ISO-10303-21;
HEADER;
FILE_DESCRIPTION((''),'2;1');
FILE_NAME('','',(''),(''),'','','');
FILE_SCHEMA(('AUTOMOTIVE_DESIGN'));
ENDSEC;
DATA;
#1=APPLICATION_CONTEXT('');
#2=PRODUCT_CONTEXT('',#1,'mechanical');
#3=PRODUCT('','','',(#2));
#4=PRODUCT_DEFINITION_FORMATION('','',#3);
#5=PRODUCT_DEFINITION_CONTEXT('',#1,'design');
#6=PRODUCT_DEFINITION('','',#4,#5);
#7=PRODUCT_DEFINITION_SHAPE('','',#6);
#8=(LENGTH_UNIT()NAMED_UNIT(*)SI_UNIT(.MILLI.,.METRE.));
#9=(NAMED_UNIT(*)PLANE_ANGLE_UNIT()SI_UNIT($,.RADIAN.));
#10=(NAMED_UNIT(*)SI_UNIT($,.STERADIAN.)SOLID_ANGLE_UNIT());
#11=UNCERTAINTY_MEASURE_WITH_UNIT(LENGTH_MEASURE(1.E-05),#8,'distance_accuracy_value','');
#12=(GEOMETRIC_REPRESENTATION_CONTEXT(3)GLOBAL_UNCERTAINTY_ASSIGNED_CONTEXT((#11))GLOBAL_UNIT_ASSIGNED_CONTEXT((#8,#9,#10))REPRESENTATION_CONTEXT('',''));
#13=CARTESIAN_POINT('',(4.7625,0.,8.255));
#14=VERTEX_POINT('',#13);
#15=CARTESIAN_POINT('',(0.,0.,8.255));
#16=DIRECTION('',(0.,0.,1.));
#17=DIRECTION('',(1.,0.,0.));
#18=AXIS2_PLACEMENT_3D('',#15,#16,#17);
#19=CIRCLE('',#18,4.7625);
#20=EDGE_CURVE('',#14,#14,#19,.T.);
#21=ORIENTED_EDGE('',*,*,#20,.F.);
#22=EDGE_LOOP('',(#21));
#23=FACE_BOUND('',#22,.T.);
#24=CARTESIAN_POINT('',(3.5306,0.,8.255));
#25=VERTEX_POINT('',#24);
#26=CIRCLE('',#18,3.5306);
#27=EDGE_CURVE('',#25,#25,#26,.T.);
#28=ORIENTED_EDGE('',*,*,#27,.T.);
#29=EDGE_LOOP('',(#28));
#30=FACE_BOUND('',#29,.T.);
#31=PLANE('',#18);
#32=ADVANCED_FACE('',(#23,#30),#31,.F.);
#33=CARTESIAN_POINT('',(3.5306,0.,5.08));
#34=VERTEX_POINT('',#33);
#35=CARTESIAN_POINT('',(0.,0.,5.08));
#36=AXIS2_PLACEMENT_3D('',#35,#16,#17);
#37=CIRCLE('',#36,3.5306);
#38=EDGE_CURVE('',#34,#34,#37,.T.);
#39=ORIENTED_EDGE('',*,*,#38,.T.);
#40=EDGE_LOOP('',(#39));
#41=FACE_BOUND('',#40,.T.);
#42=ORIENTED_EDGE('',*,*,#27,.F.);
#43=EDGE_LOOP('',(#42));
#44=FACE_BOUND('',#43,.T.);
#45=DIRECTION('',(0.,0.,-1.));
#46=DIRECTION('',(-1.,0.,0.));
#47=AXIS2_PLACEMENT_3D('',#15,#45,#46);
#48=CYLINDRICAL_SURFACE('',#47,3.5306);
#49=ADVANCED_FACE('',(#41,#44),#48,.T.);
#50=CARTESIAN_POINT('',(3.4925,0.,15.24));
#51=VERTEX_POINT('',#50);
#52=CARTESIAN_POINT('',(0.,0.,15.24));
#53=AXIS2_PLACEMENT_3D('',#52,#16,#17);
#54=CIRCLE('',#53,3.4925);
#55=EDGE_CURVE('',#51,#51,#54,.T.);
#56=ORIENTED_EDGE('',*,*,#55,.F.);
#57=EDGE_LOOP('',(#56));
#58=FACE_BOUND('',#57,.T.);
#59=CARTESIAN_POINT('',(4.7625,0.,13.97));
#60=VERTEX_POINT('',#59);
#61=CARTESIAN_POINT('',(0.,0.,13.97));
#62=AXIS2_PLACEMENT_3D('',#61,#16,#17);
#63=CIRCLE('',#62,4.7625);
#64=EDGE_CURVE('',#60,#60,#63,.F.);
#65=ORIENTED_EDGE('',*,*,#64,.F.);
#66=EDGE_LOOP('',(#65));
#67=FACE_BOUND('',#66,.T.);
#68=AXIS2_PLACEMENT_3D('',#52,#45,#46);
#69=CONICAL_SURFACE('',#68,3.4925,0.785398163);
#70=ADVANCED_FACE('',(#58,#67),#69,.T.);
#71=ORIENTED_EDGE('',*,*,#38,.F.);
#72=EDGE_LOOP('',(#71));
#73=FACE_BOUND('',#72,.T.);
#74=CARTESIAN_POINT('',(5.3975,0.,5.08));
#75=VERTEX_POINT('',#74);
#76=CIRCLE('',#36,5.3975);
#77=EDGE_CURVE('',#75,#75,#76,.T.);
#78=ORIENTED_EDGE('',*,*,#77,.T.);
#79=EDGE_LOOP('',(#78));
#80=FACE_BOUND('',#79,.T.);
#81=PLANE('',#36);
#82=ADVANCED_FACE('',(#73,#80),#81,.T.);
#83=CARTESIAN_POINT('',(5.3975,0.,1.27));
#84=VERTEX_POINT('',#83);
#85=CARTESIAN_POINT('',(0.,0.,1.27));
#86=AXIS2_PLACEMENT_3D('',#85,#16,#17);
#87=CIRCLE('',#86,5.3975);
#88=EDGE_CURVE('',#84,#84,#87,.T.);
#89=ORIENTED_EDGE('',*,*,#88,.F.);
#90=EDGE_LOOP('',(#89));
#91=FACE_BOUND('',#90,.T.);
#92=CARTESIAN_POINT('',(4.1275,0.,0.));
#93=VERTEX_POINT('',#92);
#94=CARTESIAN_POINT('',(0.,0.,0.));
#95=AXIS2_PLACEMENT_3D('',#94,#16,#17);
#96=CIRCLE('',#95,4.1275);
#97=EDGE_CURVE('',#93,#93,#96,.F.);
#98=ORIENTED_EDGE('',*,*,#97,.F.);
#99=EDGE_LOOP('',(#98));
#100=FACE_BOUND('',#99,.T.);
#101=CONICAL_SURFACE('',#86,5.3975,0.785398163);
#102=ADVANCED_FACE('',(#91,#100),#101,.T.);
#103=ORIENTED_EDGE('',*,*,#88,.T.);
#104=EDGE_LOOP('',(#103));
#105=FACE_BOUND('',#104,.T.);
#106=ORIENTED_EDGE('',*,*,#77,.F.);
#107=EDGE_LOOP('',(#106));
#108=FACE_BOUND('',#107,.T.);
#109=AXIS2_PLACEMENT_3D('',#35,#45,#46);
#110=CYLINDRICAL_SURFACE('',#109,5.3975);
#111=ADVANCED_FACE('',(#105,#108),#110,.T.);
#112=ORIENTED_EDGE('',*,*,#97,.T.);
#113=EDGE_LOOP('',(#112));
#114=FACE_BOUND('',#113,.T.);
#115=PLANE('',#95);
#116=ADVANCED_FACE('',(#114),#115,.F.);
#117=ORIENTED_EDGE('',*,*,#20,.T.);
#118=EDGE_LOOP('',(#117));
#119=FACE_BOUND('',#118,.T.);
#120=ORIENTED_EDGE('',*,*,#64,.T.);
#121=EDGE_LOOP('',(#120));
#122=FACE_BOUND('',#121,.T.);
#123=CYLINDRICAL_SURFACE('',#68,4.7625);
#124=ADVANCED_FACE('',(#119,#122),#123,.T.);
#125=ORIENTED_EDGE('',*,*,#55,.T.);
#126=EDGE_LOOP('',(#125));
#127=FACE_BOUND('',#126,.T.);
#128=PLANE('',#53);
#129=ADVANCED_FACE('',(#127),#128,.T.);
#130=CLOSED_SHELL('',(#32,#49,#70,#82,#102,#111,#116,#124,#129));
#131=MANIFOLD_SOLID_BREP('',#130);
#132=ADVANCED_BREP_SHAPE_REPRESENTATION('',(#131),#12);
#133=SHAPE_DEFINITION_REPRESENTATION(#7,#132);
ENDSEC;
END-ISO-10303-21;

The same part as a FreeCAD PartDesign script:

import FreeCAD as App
import Part
import Sketcher
from FreeCAD import Vector
Q = App.Units.Quantity


def edges_at(feature, points):
    """Names of the edges that pass closest to the given points."""
    edges = feature.Shape.Edges
    near = lambda p: min(range(len(edges)), key=lambda i: edges[i].distToShape(Part.Vertex(*p))[0])
    return sorted({f"Edge{near(p) + 1}" for p in points})

doc = App.newDocument("Part")
params = doc.addObject("Spreadsheet::Sheet", "Params")
for row, (alias, value) in enumerate([
    ("sketch1_diameter", "0.425 in"),
    ("pad1_length", "0.2 in"),
    ("sketch2_diameter", "0.278 in"),
    ("pad2_length", "0.125 in"),
    ("sketch3_diameter", "0.375 in"),
    ("pad3_length", "0.275 in"),
    ("chamfer_size", "0.05 in"),
    ("chamfer2_size", "0.05 in"),
], start=1):
    params.set(f"A{row}", alias)
    params.set(f"B{row}", "=" + value)
    params.setAlias(f"B{row}", alias)

body = doc.addObject("PartDesign::Body", "Body")

# Sketch on XY plane
sketch1 = doc.addObject("Sketcher::SketchObject", "Sketch")
body.addObject(sketch1)
sketch1.AttachmentSupport = (doc.XY_Plane, [""])
sketch1.MapMode = "FlatFace"
sketch1.addGeometry(Part.Circle(Vector(0, 0, 0), Vector(0, 0, 1), 5), False)
sketch1.addConstraint(Sketcher.Constraint("Coincident", 0, 3, -1, 1))
sketch1.addConstraint(Sketcher.Constraint("Diameter", 0, Q("0.425 in")))
sketch1.setExpression("Constraints[1]", "Params.sketch1_diameter")
pad1 = doc.addObject("PartDesign::Pad", "Pad")
body.addObject(pad1)
pad1.Profile = sketch1
pad1.setExpression("Length", "Params.pad1_length")

# Sketch on XY plane
sketch2 = doc.addObject("Sketcher::SketchObject", "Sketch001")
body.addObject(sketch2)
sketch2.AttachmentSupport = (doc.XY_Plane, [""])
sketch2.MapMode = "FlatFace"
sketch2.AttachmentOffset = App.Placement(Vector(0, 0, 0.2 * 25.4), App.Rotation())
sketch2.addGeometry(Part.Circle(Vector(0, 0, 0), Vector(0, 0, 1), 3.5), False)
sketch2.addConstraint(Sketcher.Constraint("Coincident", 0, 3, -1, 1))
sketch2.addConstraint(Sketcher.Constraint("Diameter", 0, Q("0.278 in")))
sketch2.setExpression("Constraints[1]", "Params.sketch2_diameter")
pad2 = doc.addObject("PartDesign::Pad", "Pad001")
body.addObject(pad2)
pad2.Profile = sketch2
pad2.setExpression("Length", "Params.pad2_length")

# Sketch on XY plane
sketch3 = doc.addObject("Sketcher::SketchObject", "Sketch002")
body.addObject(sketch3)
sketch3.AttachmentSupport = (doc.XY_Plane, [""])
sketch3.MapMode = "FlatFace"
sketch3.AttachmentOffset = App.Placement(Vector(0, 0, 0.325 * 25.4), App.Rotation())
sketch3.addGeometry(Part.Circle(Vector(0, 0, 0), Vector(0, 0, 1), 4.8), False)
sketch3.addConstraint(Sketcher.Constraint("Coincident", 0, 3, -1, 1))
sketch3.addConstraint(Sketcher.Constraint("Diameter", 0, Q("0.375 in")))
sketch3.setExpression("Constraints[1]", "Params.sketch3_diameter")
pad3 = doc.addObject("PartDesign::Pad", "Pad002")
body.addObject(pad3)
pad3.Profile = sketch3
pad3.setExpression("Length", "Params.pad3_length")
doc.recompute()

chamfer = doc.addObject("PartDesign::Chamfer", "Chamfer")
body.addObject(chamfer)
chamfer.Base = (pad3, edges_at(pad3, [(-4.763, 0, 15.24)]))
chamfer.setExpression("Size", "Params.chamfer_size")
doc.recompute()

chamfer2 = doc.addObject("PartDesign::Chamfer", "Chamfer001")
body.addObject(chamfer2)
chamfer2.Base = (chamfer, edges_at(chamfer, [(-5.397, 0, 0)]))
chamfer2.setExpression("Size", "Params.chamfer2_size")

doc.recompute()
